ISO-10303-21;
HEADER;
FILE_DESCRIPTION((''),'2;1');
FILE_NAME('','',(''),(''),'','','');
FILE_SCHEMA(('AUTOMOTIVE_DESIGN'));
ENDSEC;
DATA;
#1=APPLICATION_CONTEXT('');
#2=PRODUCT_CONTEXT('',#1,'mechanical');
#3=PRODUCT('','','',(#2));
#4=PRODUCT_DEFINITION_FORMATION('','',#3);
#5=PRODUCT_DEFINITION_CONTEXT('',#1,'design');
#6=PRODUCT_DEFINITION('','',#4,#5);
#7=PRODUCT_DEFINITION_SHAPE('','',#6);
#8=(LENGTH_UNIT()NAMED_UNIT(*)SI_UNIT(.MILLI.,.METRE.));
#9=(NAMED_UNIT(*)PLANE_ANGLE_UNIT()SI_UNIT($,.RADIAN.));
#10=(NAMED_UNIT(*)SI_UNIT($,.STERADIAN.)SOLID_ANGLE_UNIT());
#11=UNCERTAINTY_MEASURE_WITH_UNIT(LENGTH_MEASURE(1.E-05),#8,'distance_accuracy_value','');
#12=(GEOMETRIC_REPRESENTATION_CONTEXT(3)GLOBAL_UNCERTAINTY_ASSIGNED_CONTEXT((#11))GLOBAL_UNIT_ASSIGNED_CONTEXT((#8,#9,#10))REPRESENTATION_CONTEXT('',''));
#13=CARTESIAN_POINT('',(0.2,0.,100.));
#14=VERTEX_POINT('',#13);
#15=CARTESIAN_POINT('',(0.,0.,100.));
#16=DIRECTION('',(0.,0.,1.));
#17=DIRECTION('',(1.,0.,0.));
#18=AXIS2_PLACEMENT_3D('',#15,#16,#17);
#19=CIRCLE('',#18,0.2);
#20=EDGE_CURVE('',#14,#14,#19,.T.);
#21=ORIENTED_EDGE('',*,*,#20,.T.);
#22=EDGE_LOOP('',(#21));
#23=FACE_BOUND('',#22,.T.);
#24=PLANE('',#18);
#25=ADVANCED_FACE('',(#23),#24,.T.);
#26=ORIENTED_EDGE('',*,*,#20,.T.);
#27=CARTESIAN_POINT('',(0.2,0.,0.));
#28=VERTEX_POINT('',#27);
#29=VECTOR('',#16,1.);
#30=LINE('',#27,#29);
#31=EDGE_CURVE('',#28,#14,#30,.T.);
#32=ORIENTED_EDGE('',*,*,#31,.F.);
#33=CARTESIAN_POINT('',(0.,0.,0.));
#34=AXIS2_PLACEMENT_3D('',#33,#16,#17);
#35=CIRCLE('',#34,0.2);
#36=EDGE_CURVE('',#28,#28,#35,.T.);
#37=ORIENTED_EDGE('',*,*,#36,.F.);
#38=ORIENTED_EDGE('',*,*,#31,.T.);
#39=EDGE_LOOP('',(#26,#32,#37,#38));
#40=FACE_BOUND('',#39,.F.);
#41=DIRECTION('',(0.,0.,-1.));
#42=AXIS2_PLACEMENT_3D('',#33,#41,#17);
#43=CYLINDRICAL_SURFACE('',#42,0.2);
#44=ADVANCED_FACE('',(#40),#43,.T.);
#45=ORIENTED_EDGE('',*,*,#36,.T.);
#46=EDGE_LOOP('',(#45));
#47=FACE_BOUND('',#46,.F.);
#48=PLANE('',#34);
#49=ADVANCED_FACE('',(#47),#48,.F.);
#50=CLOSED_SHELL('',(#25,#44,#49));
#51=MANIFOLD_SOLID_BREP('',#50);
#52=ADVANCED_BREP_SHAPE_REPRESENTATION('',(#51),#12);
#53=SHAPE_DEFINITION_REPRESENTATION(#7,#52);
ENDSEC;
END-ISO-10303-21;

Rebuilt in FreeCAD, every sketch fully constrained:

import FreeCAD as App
import Part
import Sketcher
Q = App.Units.Quantity

doc = App.newDocument("Part")
params = doc.addObject("Spreadsheet::Sheet", "Params")
for row, (alias, value) in enumerate([
    ("sketch1_diameter", "0.4 mm"),
    ("pad1_length", "100 mm"),
], start=1):
    params.set(f"A{row}", alias)
    params.set(f"B{row}", "=" + value)
    params.setAlias(f"B{row}", alias)

body = doc.addObject("PartDesign::Body", "Body")

# Sketch on XY plane
sketch1 = body.newObject("Sketcher::SketchObject", "Sketch")
sketch1.AttachmentSupport = (doc.getObject("XY_Plane"), [""])
sketch1.MapMode = "FlatFace"
sketch1.addGeometry(Part.Circle(App.Vector(0, 0, 0), App.Vector(0, 0, 1), 0.2), False)
sketch1.addConstraint(Sketcher.Constraint("Coincident", 0, 3, -1, 1))
sketch1.addConstraint(Sketcher.Constraint("Diameter", 0, Q("0.4 mm")))
sketch1.setExpression("Constraints[1]", "Params.sketch1_diameter")
pad1 = body.newObject("PartDesign::Pad", "Pad")
pad1.Profile = sketch1
pad1.setExpression("Length", "Params.pad1_length")

doc.recompute()
